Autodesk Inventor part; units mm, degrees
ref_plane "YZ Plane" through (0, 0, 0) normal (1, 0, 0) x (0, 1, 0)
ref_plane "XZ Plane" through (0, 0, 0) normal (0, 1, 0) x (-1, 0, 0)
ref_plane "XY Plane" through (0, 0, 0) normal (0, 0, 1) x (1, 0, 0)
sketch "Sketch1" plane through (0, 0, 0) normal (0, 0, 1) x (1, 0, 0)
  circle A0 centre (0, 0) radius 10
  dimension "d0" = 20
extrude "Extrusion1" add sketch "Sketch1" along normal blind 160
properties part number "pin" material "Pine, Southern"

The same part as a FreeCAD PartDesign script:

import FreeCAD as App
import Part
import Sketcher
from FreeCAD import Vector
Q = App.Units.Quantity

doc = App.newDocument("Part")
body = doc.addObject("PartDesign::Body", "Body")

# Sketch on XY plane
sketch1 = body.newObject("Sketcher::SketchObject", "Sketch")
sketch1.AttachmentSupport = (doc.getObject("XY_Plane"), [""])
sketch1.MapMode = "FlatFace"
sketch1.addGeometry(Part.Circle(Vector(0, 0, 0), Vector(0, 0, 1), 10), False)
sketch1.addConstraint([
    Sketcher.Constraint("Coincident", 0, 3, -1, 1),
    Sketcher.Constraint("Diameter", 0, Q("20 mm")),
])
pad1 = body.newObject("PartDesign::Pad", "Pad")
pad1.Profile = sketch1
pad1.Length = 160

doc.recompute()
